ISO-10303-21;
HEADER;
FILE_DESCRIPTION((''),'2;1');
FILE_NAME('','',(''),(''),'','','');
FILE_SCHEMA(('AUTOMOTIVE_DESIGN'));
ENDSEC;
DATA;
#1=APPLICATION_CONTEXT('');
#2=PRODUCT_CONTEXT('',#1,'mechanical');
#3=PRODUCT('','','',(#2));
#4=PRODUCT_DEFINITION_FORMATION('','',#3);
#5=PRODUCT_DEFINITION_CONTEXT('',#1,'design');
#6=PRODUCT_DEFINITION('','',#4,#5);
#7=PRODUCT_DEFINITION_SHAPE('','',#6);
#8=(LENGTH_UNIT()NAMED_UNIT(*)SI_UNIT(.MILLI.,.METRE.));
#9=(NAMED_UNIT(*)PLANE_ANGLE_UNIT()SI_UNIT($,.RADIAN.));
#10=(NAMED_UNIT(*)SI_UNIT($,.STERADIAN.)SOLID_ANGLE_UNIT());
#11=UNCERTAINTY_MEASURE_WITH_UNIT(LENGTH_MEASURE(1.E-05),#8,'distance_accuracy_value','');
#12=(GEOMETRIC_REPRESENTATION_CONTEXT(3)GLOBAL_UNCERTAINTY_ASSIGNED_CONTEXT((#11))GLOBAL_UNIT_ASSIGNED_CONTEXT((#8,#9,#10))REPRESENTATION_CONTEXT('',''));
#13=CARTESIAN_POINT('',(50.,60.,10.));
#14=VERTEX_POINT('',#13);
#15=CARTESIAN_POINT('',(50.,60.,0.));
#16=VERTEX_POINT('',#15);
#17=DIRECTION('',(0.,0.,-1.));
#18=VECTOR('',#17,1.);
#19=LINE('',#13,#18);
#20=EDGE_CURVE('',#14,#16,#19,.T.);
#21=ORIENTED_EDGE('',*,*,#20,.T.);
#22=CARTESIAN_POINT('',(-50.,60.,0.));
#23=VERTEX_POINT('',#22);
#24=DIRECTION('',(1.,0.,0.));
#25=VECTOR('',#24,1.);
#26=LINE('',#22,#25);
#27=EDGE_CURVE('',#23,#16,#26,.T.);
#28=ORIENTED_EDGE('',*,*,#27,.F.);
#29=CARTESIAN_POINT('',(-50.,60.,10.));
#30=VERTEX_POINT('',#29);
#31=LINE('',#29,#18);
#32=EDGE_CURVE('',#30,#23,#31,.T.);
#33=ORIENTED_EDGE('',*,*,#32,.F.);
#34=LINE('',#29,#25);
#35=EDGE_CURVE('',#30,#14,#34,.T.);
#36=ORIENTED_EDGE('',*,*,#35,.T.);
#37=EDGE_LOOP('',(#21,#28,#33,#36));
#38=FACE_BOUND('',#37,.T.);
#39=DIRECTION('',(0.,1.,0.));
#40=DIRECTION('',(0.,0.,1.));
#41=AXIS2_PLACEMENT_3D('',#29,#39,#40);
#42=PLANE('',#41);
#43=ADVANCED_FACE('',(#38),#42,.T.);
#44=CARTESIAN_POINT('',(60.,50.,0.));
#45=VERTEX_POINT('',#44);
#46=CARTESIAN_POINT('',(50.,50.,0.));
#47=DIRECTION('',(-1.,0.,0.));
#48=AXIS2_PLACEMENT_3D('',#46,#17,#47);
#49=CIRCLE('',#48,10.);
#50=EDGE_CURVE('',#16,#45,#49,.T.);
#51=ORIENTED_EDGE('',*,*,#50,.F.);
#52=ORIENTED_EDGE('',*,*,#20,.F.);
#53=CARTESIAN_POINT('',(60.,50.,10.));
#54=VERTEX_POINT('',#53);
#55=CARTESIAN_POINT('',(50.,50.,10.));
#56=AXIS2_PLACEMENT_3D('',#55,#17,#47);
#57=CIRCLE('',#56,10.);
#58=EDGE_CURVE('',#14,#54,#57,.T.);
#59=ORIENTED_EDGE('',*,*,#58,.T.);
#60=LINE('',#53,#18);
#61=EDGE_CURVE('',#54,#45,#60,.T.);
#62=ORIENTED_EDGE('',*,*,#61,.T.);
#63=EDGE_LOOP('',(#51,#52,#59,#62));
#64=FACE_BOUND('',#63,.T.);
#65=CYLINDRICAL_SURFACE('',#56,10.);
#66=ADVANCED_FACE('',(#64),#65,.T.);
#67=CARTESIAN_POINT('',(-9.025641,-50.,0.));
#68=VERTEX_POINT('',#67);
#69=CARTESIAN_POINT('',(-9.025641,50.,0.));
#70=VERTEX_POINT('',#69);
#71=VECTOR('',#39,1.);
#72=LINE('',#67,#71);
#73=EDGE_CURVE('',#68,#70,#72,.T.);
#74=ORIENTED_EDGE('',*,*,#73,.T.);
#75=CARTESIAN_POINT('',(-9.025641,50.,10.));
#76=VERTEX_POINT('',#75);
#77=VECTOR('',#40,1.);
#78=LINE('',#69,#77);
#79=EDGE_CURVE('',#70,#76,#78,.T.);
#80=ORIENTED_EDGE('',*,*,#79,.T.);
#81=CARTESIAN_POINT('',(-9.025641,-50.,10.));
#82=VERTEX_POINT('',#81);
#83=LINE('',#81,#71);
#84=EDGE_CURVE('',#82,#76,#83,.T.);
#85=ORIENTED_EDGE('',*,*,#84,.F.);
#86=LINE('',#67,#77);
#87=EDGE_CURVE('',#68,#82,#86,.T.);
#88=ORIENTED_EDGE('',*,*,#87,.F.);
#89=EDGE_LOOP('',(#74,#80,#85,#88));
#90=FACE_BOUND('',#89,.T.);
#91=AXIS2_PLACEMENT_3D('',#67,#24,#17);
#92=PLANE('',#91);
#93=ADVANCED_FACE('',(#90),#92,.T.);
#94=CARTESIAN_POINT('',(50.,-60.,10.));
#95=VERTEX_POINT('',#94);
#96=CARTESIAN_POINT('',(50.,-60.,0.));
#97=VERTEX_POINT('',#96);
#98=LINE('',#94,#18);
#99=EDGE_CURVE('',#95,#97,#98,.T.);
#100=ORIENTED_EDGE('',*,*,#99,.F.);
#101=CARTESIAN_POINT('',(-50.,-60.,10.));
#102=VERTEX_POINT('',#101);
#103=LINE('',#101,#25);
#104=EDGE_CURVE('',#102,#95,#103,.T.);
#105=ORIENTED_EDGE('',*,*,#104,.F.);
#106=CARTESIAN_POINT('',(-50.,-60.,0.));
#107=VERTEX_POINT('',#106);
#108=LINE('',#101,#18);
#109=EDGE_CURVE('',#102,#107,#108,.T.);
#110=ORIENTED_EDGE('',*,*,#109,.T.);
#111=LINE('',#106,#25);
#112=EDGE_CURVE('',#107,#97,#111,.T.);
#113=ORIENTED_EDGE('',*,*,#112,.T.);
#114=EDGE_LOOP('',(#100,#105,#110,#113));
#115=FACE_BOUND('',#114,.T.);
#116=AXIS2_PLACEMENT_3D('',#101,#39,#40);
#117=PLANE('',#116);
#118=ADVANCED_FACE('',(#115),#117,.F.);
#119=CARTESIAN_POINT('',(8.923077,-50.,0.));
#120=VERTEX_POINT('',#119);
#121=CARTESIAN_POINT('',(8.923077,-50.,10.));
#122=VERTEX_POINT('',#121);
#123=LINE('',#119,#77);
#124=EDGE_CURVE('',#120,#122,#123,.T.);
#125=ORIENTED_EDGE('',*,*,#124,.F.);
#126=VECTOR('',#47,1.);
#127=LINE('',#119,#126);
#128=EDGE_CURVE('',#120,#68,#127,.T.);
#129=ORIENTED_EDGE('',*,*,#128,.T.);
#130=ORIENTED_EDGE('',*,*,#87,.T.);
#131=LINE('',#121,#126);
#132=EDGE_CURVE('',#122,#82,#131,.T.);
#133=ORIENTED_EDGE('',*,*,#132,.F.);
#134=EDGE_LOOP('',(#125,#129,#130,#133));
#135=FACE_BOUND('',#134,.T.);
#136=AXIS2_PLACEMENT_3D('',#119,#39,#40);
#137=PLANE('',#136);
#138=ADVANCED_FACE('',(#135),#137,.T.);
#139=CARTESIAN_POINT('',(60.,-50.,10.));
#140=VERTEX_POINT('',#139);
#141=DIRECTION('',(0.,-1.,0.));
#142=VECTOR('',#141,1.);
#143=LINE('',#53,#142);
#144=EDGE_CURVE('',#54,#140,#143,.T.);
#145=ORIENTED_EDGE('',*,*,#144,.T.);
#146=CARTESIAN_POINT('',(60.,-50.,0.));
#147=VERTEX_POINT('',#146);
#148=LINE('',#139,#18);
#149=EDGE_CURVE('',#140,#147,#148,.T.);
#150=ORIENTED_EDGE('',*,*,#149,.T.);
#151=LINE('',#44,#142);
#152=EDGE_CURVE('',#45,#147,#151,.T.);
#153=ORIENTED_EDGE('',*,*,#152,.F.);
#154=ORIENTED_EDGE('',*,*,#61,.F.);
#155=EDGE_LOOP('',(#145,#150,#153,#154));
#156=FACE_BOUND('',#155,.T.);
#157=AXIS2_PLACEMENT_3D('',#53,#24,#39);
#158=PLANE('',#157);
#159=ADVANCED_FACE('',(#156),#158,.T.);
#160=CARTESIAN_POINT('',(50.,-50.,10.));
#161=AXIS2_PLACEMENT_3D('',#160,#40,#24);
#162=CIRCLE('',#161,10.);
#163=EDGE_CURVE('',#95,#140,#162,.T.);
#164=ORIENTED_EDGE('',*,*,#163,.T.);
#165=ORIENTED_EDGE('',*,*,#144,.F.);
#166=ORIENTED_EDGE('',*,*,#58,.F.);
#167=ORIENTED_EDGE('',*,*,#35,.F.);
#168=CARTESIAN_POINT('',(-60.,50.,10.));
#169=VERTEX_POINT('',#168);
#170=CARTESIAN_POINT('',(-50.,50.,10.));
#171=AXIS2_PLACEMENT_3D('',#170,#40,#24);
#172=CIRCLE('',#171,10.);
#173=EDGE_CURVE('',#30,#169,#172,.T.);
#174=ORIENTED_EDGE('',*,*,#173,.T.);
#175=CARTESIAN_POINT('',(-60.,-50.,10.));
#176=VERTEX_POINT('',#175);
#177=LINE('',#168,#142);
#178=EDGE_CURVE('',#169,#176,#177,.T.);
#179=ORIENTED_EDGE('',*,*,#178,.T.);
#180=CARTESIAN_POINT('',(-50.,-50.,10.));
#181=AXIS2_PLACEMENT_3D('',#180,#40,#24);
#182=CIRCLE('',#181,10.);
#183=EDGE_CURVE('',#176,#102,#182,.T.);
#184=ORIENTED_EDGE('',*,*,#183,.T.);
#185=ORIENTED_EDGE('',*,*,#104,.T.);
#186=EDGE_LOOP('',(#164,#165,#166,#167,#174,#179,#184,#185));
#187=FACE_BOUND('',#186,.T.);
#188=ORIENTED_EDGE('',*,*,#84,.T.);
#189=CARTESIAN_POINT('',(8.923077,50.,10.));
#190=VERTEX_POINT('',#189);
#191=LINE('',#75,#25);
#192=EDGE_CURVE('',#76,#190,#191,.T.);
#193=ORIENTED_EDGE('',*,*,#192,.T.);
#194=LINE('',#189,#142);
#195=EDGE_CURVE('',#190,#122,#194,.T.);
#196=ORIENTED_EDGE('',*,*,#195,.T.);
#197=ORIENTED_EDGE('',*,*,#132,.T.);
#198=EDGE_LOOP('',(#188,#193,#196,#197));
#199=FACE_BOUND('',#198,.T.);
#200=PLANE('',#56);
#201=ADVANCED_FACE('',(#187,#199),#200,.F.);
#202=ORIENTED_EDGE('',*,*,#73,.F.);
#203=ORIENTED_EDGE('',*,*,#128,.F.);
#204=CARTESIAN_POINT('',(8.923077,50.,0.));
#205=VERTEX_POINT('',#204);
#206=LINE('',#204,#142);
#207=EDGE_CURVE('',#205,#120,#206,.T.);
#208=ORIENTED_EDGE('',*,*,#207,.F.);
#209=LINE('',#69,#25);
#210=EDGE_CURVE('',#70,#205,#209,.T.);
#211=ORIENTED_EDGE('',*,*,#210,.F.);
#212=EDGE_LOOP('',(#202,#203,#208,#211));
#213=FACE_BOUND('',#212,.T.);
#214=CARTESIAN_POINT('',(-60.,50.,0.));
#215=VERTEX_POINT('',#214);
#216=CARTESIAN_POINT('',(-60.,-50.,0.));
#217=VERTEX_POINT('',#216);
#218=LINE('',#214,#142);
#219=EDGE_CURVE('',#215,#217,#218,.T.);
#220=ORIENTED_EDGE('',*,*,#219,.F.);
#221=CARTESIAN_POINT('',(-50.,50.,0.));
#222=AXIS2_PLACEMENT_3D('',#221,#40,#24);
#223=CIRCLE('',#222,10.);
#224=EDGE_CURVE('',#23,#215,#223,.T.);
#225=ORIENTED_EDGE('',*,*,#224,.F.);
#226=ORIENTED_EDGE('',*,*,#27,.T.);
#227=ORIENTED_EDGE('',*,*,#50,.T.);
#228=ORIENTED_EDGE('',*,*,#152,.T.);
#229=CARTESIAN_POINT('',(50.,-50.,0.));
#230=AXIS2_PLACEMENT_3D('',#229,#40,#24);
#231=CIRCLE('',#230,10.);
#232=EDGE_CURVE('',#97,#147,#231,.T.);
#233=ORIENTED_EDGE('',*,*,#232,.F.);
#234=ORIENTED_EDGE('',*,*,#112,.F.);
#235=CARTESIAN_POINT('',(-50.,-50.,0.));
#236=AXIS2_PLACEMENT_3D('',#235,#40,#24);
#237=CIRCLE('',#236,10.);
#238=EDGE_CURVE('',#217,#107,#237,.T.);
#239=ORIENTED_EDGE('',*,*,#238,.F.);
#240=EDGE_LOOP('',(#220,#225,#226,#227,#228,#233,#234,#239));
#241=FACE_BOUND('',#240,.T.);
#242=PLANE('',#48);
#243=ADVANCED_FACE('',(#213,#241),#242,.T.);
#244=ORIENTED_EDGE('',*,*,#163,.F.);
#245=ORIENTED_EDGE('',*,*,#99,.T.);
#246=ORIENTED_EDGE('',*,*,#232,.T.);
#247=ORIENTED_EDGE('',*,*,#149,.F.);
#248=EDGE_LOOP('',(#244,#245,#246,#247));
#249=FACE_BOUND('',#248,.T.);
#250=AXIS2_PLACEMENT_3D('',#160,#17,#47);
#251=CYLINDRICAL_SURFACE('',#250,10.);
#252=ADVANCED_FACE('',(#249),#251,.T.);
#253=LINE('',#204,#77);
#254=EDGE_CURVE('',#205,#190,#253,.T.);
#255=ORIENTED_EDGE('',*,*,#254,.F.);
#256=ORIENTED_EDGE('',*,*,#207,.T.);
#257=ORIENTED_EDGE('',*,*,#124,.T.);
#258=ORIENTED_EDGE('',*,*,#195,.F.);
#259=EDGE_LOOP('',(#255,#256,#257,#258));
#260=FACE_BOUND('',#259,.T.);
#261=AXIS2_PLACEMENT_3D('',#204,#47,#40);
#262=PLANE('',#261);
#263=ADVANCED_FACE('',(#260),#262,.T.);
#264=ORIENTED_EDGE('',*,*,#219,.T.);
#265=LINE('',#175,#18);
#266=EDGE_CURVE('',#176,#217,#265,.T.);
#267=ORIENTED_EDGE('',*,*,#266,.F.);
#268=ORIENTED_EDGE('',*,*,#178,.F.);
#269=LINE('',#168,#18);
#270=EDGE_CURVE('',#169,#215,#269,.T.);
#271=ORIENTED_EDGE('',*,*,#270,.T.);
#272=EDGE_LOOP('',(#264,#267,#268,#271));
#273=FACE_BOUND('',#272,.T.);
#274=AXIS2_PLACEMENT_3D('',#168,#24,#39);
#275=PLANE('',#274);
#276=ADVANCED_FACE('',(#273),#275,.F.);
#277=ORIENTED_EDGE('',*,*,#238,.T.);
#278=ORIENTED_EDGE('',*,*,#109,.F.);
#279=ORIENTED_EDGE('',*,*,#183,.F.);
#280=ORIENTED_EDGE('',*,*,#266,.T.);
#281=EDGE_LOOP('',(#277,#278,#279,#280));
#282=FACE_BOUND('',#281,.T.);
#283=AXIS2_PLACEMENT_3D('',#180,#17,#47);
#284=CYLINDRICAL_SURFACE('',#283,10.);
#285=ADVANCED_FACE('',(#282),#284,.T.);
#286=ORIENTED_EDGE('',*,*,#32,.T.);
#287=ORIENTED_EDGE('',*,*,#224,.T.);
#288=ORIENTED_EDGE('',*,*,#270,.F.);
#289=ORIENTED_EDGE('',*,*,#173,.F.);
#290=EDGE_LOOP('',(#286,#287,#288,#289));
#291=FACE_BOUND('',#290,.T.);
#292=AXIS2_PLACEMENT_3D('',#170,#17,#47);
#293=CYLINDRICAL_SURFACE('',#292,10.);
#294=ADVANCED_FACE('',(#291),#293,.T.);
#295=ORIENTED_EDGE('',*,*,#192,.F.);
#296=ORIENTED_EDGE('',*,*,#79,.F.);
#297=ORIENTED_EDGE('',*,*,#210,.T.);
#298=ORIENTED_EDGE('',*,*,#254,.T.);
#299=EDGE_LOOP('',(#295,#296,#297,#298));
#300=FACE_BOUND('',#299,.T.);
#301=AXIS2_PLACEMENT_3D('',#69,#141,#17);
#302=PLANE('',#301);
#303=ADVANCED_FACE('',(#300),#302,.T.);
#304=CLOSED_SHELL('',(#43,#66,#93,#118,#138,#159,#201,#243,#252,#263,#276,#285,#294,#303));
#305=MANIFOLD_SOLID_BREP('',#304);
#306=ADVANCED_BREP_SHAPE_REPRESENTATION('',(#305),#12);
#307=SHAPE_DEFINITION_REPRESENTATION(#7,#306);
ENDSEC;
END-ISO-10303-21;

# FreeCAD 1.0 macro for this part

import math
import FreeCAD as App
import Part
import Sketcher
Q = App.Units.Quantity

doc = App.newDocument("Part")
body = doc.addObject("PartDesign::Body", "Body")

# Sketch on XY plane
sketch1 = doc.addObject("Sketcher::SketchObject", "Sketch")
body.addObject(sketch1)
sketch1.AttachmentSupport = (doc.XY_Plane, [""])
sketch1.MapMode = "FlatFace"
sketch1.addGeometry(Part.LineSegment(App.Vector(50, 60, 0), App.Vector(-50, 60, 0)), False)
sketch1.addGeometry(Part.ArcOfCircle(Part.Circle(App.Vector(-50, 50, 0), App.Vector(0, 0, 1), 10), math.radians(90), math.radians(180)), False)
sketch1.addGeometry(Part.LineSegment(App.Vector(-60, 50, 0), App.Vector(-60, -50, 0)), False)
sketch1.addGeometry(Part.ArcOfCircle(Part.Circle(App.Vector(-50, -50, 0), App.Vector(0, 0, 1), 10), math.radians(180), math.radians(270)), False)
sketch1.addGeometry(Part.LineSegment(App.Vector(-50, -60, 0), App.Vector(50, -60, 0)), False)
sketch1.addGeometry(Part.ArcOfCircle(Part.Circle(App.Vector(50, -50, 0), App.Vector(0, 0, 1), 10), math.radians(-90), math.radians(0)), False)
sketch1.addGeometry(Part.LineSegment(App.Vector(60, -50, 0), App.Vector(60, 50, 0)), False)
sketch1.addGeometry(Part.ArcOfCircle(Part.Circle(App.Vector(50, 50, 0), App.Vector(0, 0, 1), 10), math.radians(0), math.radians(90)), False)
sketch1.addConstraint(Sketcher.Constraint("Tangent", 0, 2, 1, 1))
sketch1.addConstraint(Sketcher.Constraint("Tangent", 1, 2, 2, 1))
sketch1.addConstraint(Sketcher.Constraint("Tangent", 2, 2, 3, 1))
sketch1.addConstraint(Sketcher.Constraint("Tangent", 3, 2, 4, 1))
sketch1.addConstraint(Sketcher.Constraint("Tangent", 4, 2, 5, 1))
sketch1.addConstraint(Sketcher.Constraint("Tangent", 5, 2, 6, 1))
sketch1.addConstraint(Sketcher.Constraint("Tangent", 6, 2, 7, 1))
sketch1.addConstraint(Sketcher.Constraint("Tangent", 7, 2, 0, 1))
sketch1.addConstraint(Sketcher.Constraint("Horizontal", 0))
sketch1.addConstraint(Sketcher.Constraint("Vertical", 2))
sketch1.addConstraint(Sketcher.Constraint("Horizontal", 4))
sketch1.addConstraint(Sketcher.Constraint("Vertical", 6))
sketch1.addConstraint(Sketcher.Constraint("Equal", 1, 3))
sketch1.addConstraint(Sketcher.Constraint("Equal", 3, 5))
sketch1.addConstraint(Sketcher.Constraint("Equal", 5, 7))
sketch1.addConstraint(Sketcher.Constraint("Symmetric", 1, 3, 5, 3, -1, 1))
sketch1.addConstraint(Sketcher.Constraint("Equal", 4, 2))
sketch1.addConstraint(Sketcher.Constraint("Radius", 1, Q("10 mm")))
sketch1.addConstraint(Sketcher.Constraint("DistanceX", 0, 2, 0, 1, Q("100 mm")))
pad1 = doc.addObject("PartDesign::Pad", "Pad")
body.addObject(pad1)
pad1.Profile = sketch1
pad1.Length = 10

# Sketch on XY plane
sketch2 = doc.addObject("Sketcher::SketchObject", "Sketch001")
body.addObject(sketch2)
sketch2.AttachmentSupport = (doc.XY_Plane, [""])
sketch2.MapMode = "FlatFace"
sketch2.AttachmentOffset = App.Placement(App.Vector(0, 0, 10), App.Rotation())
sketch2.addGeometry(Part.LineSegment(App.Vector(-9.025641, 50, 0), App.Vector(-9.025641, -50, 0)), False)
sketch2.addGeometry(Part.LineSegment(App.Vector(-9.025641, -50, 0), App.Vector(8.923077, -50, 0)), False)
sketch2.addGeometry(Part.LineSegment(App.Vector(8.923077, -50, 0), App.Vector(8.923077, 50, 0)), False)
sketch2.addGeometry(Part.LineSegment(App.Vector(8.923077, 50, 0), App.Vector(-9.025641, 50, 0)), False)
sketch2.addConstraint(Sketcher.Constraint("Coincident", 0, 2, 1, 1))
sketch2.addConstraint(Sketcher.Constraint("Coincident", 1, 2, 2, 1))
sketch2.addConstraint(Sketcher.Constraint("Coincident", 2, 2, 3, 1))
sketch2.addConstraint(Sketcher.Constraint("Coincident", 3, 2, 0, 1))
sketch2.addConstraint(Sketcher.Constraint("Vertical", 0))
sketch2.addConstraint(Sketcher.Constraint("Horizontal", 1))
sketch2.addConstraint(Sketcher.Constraint("Vertical", 2))
sketch2.addConstraint(Sketcher.Constraint("Horizontal", 3))
sketch2.addConstraint(Sketcher.Constraint("DistanceY", 0, 2, 0, 1, Q("100 mm")))
sketch2.addConstraint(Sketcher.Constraint("DistanceY", 0, 2, -1, 1, Q("50 mm")))
sketch2.addConstraint(Sketcher.Constraint("DistanceX", 1, 1, 1, 2, Q("17.948718 mm")))
sketch2.addConstraint(Sketcher.Constraint("DistanceX", 0, 2, -1, 1, Q("9.025641 mm")))
pocket1 = doc.addObject("PartDesign::Pocket", "Pocket")
body.addObject(pocket1)
pocket1.Profile = sketch2
pocket1.Length = 10

doc.recompute()
